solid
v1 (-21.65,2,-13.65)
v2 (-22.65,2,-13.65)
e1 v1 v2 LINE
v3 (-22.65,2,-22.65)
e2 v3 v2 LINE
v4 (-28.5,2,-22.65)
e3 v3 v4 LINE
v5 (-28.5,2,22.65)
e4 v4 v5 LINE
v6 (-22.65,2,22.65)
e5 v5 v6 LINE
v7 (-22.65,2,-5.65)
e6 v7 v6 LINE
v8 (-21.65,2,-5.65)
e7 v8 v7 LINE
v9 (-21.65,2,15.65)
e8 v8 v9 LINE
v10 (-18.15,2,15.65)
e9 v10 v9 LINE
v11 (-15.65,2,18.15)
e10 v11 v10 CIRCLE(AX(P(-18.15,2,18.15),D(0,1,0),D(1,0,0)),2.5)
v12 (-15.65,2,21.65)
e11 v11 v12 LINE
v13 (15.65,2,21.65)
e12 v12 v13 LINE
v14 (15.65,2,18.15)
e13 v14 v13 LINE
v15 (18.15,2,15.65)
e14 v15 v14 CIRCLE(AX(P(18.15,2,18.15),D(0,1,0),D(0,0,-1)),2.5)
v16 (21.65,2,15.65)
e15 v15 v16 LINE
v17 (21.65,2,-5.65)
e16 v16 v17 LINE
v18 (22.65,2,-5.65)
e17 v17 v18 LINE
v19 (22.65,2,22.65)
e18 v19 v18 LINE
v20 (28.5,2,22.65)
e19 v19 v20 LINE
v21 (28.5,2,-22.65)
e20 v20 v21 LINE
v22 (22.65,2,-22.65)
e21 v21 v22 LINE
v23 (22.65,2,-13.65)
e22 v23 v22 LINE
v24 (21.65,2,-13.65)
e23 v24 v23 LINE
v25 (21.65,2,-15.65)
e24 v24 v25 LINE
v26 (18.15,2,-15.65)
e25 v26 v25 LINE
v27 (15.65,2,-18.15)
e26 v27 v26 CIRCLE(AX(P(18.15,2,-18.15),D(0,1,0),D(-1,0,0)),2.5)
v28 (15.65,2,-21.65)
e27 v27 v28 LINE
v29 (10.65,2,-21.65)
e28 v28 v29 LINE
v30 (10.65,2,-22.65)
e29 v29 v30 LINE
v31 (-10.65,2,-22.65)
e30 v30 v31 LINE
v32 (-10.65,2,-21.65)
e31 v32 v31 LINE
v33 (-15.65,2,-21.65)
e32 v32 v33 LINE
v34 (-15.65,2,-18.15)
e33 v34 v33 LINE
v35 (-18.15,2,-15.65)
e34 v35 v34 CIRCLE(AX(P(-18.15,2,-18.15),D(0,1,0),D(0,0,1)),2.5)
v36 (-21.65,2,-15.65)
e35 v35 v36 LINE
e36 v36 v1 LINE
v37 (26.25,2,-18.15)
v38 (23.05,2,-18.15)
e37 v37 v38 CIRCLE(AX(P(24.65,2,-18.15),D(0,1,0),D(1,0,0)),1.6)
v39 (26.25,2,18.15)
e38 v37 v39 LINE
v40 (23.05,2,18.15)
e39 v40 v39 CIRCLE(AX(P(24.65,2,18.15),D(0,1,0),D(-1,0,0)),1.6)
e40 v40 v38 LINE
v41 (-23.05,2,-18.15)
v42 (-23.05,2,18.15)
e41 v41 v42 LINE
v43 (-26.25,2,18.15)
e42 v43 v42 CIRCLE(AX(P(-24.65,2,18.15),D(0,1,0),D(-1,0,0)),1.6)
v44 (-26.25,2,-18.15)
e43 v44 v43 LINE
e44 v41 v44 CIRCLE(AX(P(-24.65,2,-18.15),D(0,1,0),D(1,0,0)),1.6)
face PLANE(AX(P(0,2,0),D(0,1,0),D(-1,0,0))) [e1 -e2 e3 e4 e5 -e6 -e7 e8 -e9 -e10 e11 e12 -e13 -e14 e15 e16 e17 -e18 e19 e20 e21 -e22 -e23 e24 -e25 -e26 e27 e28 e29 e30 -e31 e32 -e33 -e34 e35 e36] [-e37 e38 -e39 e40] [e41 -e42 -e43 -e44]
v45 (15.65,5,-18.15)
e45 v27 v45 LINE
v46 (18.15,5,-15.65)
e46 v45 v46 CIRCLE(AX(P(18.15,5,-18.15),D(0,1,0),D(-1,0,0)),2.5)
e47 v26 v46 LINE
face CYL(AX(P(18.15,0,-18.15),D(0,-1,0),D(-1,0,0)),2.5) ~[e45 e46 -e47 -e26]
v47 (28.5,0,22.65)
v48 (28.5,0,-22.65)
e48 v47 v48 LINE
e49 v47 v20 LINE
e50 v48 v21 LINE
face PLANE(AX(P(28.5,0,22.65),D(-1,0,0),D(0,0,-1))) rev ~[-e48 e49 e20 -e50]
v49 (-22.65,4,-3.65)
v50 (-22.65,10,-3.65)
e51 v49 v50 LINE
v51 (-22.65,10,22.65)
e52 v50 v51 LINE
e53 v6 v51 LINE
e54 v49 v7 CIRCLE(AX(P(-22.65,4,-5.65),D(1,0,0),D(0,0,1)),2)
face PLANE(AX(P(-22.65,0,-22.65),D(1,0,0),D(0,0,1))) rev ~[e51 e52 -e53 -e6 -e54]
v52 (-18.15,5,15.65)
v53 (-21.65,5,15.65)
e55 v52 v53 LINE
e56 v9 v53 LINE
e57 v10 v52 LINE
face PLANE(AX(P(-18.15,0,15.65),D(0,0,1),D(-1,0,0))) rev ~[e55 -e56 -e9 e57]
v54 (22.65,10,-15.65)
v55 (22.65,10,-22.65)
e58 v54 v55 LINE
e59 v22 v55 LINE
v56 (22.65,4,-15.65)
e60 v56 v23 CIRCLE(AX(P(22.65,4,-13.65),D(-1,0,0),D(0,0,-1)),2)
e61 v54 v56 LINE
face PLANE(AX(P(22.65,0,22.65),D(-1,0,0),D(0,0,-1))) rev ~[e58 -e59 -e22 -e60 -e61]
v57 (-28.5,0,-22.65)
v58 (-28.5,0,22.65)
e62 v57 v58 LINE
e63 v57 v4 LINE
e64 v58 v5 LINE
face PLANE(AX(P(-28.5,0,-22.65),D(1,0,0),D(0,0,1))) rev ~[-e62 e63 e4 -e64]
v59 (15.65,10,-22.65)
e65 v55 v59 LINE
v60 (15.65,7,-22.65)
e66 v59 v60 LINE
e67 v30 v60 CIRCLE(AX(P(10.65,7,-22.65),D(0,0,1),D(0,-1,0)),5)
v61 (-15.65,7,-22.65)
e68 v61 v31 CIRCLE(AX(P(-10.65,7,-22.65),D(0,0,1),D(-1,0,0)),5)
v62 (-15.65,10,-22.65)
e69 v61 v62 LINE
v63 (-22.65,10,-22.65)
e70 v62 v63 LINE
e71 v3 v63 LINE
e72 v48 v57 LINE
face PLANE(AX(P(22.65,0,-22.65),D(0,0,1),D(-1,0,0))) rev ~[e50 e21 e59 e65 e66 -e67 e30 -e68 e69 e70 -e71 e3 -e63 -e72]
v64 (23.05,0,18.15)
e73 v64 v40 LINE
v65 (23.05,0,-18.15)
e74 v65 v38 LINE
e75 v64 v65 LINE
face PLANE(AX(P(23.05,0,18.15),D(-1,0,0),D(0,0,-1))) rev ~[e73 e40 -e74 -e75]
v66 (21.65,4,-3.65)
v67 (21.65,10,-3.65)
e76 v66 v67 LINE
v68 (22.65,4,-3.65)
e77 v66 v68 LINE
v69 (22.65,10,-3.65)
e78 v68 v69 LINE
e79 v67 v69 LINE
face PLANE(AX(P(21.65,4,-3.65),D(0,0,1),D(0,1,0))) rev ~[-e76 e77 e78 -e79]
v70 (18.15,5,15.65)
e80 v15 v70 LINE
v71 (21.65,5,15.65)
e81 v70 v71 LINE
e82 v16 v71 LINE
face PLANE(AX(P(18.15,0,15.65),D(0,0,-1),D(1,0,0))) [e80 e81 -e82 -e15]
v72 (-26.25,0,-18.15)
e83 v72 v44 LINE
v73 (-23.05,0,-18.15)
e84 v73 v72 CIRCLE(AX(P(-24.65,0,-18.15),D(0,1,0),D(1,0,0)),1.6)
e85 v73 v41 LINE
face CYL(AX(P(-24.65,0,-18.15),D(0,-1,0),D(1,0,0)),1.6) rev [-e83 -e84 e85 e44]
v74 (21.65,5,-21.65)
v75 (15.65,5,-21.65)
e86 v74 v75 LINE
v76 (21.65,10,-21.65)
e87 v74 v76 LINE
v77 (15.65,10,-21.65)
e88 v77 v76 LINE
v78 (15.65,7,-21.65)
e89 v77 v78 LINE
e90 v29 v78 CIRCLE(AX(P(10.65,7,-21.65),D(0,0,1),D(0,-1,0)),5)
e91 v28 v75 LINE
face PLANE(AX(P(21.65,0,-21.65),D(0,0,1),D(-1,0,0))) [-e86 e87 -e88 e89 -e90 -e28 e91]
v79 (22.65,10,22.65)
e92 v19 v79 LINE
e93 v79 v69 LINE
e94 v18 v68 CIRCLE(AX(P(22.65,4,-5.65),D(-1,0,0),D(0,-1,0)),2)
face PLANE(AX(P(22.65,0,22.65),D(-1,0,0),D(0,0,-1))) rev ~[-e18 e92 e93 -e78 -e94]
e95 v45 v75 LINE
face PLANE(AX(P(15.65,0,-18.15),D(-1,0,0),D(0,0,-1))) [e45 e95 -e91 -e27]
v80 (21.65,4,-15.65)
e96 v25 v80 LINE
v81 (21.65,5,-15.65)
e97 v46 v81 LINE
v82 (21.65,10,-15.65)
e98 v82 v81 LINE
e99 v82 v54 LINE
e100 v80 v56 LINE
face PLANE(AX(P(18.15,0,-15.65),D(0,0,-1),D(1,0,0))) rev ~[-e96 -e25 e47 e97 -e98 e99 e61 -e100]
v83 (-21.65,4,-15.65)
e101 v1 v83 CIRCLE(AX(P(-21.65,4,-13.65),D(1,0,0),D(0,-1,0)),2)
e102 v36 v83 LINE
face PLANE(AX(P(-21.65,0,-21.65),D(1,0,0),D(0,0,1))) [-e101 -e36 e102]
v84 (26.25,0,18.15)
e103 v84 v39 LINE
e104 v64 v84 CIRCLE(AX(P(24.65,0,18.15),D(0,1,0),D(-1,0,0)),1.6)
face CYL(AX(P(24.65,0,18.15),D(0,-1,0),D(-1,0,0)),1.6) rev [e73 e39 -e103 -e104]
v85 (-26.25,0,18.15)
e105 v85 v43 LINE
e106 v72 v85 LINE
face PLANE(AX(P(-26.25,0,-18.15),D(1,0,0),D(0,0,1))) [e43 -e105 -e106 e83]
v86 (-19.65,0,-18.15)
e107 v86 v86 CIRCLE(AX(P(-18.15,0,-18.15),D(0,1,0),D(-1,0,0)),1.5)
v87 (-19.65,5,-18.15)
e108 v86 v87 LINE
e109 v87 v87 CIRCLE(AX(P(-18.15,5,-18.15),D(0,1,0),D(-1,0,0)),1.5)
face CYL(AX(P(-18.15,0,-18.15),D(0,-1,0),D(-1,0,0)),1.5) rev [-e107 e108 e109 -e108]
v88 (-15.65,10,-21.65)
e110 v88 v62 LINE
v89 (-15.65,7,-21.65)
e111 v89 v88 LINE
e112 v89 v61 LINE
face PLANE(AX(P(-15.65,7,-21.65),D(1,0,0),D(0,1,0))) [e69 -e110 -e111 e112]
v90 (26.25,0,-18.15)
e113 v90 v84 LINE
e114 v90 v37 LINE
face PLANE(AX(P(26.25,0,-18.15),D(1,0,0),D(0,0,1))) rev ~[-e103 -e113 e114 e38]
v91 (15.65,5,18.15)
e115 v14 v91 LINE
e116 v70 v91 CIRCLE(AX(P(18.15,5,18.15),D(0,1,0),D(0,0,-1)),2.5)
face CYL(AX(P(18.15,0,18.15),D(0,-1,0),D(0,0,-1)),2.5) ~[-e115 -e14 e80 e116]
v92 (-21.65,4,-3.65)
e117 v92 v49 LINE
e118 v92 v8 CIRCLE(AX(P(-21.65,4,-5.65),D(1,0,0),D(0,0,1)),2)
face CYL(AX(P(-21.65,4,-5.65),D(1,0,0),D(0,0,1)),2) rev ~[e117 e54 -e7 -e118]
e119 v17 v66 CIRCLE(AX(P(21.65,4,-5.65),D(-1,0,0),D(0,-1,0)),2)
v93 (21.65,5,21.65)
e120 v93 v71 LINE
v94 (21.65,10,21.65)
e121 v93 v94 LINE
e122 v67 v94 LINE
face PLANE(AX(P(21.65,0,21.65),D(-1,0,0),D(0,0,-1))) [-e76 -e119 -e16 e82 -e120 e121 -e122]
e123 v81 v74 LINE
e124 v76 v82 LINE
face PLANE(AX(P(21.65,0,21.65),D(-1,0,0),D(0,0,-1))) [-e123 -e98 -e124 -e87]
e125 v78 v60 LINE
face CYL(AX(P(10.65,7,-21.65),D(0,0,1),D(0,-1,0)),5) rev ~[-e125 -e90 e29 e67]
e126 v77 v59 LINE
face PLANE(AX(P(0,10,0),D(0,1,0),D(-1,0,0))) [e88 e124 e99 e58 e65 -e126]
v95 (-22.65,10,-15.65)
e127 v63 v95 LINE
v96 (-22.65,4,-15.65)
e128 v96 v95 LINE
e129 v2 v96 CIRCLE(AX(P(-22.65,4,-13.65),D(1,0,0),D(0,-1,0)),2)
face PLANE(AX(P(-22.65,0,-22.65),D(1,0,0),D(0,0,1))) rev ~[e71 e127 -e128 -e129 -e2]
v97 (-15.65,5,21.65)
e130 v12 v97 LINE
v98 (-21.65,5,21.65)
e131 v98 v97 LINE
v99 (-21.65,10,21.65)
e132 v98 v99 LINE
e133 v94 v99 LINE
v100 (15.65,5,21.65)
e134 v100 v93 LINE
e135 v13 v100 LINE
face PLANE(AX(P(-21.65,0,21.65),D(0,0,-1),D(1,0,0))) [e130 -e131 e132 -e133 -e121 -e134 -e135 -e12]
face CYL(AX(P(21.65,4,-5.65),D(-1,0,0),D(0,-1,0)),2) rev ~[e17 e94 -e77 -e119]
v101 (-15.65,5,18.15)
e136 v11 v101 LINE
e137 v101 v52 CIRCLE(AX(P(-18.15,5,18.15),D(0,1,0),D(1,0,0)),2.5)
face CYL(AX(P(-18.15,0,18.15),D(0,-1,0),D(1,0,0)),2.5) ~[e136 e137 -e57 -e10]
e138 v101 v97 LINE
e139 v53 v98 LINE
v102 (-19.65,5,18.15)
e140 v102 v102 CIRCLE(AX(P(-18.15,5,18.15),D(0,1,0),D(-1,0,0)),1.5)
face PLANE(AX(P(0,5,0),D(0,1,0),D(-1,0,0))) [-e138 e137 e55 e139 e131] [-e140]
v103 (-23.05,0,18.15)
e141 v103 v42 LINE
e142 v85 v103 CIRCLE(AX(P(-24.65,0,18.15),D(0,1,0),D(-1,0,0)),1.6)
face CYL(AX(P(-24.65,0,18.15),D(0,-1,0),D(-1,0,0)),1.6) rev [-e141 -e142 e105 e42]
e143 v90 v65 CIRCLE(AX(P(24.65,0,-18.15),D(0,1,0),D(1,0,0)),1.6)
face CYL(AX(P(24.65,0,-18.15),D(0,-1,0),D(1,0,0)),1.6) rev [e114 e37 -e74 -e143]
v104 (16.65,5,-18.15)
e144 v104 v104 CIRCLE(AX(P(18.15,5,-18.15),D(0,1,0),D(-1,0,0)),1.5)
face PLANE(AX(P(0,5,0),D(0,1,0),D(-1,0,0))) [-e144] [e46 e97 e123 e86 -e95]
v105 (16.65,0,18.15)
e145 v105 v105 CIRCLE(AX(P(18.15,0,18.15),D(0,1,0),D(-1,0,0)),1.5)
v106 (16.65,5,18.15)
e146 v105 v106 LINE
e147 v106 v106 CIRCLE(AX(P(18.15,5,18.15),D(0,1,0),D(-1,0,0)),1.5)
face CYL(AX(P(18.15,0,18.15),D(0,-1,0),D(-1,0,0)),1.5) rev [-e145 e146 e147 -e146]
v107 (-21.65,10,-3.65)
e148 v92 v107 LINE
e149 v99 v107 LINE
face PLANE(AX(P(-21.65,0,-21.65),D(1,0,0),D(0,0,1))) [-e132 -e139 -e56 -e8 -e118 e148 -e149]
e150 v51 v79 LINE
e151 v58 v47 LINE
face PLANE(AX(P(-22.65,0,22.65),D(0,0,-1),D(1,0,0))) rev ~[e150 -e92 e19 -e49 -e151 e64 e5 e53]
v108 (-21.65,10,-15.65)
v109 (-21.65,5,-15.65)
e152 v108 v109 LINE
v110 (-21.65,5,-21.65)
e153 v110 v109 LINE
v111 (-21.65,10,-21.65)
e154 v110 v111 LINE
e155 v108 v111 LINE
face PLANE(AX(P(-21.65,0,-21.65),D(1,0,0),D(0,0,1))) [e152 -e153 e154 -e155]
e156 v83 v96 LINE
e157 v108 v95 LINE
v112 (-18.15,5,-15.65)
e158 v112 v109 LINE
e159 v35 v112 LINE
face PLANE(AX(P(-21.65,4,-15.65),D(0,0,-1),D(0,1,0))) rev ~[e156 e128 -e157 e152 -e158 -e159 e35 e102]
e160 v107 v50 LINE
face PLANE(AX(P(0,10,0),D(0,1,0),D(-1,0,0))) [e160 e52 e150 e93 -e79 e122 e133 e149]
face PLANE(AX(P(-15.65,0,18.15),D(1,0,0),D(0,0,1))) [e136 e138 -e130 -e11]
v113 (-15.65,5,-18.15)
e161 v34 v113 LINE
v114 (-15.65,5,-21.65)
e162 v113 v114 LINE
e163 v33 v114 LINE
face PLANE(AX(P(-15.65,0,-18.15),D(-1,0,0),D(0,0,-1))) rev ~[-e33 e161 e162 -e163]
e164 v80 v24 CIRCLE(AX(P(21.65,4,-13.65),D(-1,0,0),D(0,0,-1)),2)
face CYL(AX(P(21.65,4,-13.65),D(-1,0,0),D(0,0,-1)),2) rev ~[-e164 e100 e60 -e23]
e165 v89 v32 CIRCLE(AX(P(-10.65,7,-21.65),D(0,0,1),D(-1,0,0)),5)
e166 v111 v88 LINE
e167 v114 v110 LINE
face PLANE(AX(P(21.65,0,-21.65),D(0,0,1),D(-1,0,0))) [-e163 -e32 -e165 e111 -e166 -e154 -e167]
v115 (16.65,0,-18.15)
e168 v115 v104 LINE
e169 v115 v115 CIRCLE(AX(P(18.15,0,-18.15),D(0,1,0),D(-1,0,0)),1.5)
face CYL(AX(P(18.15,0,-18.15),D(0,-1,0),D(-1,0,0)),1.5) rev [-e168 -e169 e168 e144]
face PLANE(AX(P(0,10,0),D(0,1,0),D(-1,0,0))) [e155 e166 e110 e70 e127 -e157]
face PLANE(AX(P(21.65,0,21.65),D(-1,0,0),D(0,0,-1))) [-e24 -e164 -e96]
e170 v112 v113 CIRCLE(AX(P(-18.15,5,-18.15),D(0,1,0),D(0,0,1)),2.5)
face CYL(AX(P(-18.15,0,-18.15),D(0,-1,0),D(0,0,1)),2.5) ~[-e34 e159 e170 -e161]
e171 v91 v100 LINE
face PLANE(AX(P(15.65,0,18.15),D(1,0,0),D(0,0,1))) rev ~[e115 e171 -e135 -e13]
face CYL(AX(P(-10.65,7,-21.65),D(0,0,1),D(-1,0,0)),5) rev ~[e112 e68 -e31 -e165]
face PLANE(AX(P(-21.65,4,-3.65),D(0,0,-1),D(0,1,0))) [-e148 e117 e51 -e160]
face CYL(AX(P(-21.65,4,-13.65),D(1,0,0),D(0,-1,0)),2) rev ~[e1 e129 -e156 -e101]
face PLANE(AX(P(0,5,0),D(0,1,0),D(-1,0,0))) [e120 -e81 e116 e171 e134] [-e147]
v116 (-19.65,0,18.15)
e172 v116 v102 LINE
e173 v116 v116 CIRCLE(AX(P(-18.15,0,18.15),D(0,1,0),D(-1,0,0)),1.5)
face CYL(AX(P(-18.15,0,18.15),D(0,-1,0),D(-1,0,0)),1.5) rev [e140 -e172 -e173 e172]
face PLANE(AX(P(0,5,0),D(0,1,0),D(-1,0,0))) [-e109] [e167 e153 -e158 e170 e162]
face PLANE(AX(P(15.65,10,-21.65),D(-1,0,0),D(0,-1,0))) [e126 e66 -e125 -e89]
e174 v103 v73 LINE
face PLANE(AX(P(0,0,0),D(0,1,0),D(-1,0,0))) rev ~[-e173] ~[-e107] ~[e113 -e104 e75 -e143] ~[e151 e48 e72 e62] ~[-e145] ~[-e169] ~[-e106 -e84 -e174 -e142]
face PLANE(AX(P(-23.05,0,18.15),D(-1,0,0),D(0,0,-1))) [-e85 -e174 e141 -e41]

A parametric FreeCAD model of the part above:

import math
import FreeCAD as App
import Part
import Sketcher
from FreeCAD import Vector


def add_polygon(sketch, points):
    """Adds a closed chain of lines whose ends are joined by coincident constraints."""
    first, n = sketch.GeometryCount, len(points)
    for a, b in zip(points, points[1:] + points[:1]):
        sketch.addGeometry(Part.LineSegment(App.Vector(*a, 0), App.Vector(*b, 0)), False)
    for i in range(n):
        sketch.addConstraint(Sketcher.Constraint("Coincident", first + i, 2, first + (i + 1) % n, 1))

doc = App.newDocument("Part")
body = doc.addObject("PartDesign::Body", "Body")

sketch1 = doc.addObject("Sketcher::SketchObject", "Sketch")
body.addObject(sketch1)
sketch1.AttachmentSupport = (doc.XZ_Plane, [""])
sketch1.MapMode = "FlatFace"
add_polygon(sketch1, [(-23, -23), (-23, 23), (23, 23), (23, -23)])
add_polygon(sketch1, [(22, 22), (-22, 22), (-22, -22), (22, -22)])
sketch1.addConstraint(Sketcher.Constraint("Vertical", 0))
sketch1.addConstraint(Sketcher.Constraint("Horizontal", 1))
sketch1.addConstraint(Sketcher.Constraint("Vertical", 2))
sketch1.addConstraint(Sketcher.Constraint("Horizontal", 3))
sketch1.addConstraint(Sketcher.Constraint("Horizontal", 4))
sketch1.addConstraint(Sketcher.Constraint("Vertical", 5))
sketch1.addConstraint(Sketcher.Constraint("Horizontal", 6))
sketch1.addConstraint(Sketcher.Constraint("Vertical", 7))
sketch1.addConstraint(Sketcher.Constraint("Symmetric", 0, 2, 2, 2, -1, 1))
sketch1.addConstraint(Sketcher.Constraint("Symmetric", 4, 2, 6, 2, -1, 1))
sketch1.addConstraint(Sketcher.Constraint("Equal", 3, 0))
sketch1.addConstraint(Sketcher.Constraint("Equal", 6, 5))
sketch1.addConstraint(Sketcher.Constraint("DistanceX", 1, 1, 1, 2, 45.3))
sketch1.addConstraint(Sketcher.Constraint("DistanceX", 4, 2, 4, 1, 43.3))
pad1 = doc.addObject("PartDesign::Pad", "Pad")
body.addObject(pad1)
pad1.Profile = sketch1
pad1.Length = 10
pad1.Reversed = True

sketch2 = doc.addObject("Sketcher::SketchObject", "Sketch001")
body.addObject(sketch2)
sketch2.AttachmentSupport = (doc.XZ_Plane, [""])
sketch2.MapMode = "FlatFace"
sketch2.addGeometry(Part.LineSegment(Vector(-15.7, 18.1, 0), Vector(-15.7, 21.6, 0)), False)
sketch2.addGeometry(Part.LineSegment(Vector(-15.7, 21.6, 0), Vector(15.7, 21.6, 0)), False)
sketch2.addGeometry(Part.LineSegment(Vector(15.7, 21.6, 0), Vector(15.7, 18.1, 0)), False)
sketch2.addGeometry(Part.ArcOfCircle(Part.Circle(Vector(18.1, 18.1, 0), Vector(0, 0, 1), 2.5), math.radians(180), math.radians(270)), False)
sketch2.addGeometry(Part.LineSegment(Vector(18.1, 15.7, 0), Vector(21.6, 15.7, 0)), False)
sketch2.addGeometry(Part.LineSegment(Vector(21.6, 15.7, 0), Vector(21.6, -15.7, 0)), False)
sketch2.addGeometry(Part.LineSegment(Vector(21.6, -15.7, 0), Vector(18.1, -15.7, 0)), False)
sketch2.addGeometry(Part.ArcOfCircle(Part.Circle(Vector(18.1, -18.1, 0), Vector(0, 0, 1), 2.5), math.radians(90), math.radians(180)), False)
sketch2.addGeometry(Part.LineSegment(Vector(15.7, -18.1, 0), Vector(15.7, -21.6, 0)), False)
sketch2.addGeometry(Part.LineSegment(Vector(15.7, -21.6, 0), Vector(-15.7, -21.6, 0)), False)
sketch2.addGeometry(Part.LineSegment(Vector(-15.7, -21.6, 0), Vector(-15.7, -18.1, 0)), False)
sketch2.addGeometry(Part.ArcOfCircle(Part.Circle(Vector(-18.1, -18.1, 0), Vector(0, 0, 1), 2.5), math.radians(0), math.radians(90)), False)
sketch2.addGeometry(Part.LineSegment(Vector(-18.1, -15.7, 0), Vector(-21.6, -15.7, 0)), False)
sketch2.addGeometry(Part.LineSegment(Vector(-21.6, -15.7, 0), Vector(-21.6, 15.7, 0)), False)
sketch2.addGeometry(Part.LineSegment(Vector(-21.6, 15.7, 0), Vector(-18.1, 15.7, 0)), False)
sketch2.addGeometry(Part.ArcOfCircle(Part.Circle(Vector(-18.1, 18.1, 0), Vector(0, 0, 1), 2.5), math.radians(-90), math.radians(0)), False)
sketch2.addConstraint(Sketcher.Constraint("Coincident", 0, 2, 1, 1))
sketch2.addConstraint(Sketcher.Constraint("Coincident", 1, 2, 2, 1))
sketch2.addConstraint(Sketcher.Constraint("Tangent", 2, 2, 3, 1))
sketch2.addConstraint(Sketcher.Constraint("Tangent", 3, 2, 4, 1))
sketch2.addConstraint(Sketcher.Constraint("Coincident", 4, 2, 5, 1))
sketch2.addConstraint(Sketcher.Constraint("Coincident", 5, 2, 6, 1))
sketch2.addConstraint(Sketcher.Constraint("Tangent", 6, 2, 7, 1))
sketch2.addConstraint(Sketcher.Constraint("Tangent", 7, 2, 8, 1))
sketch2.addConstraint(Sketcher.Constraint("Coincident", 8, 2, 9, 1))
sketch2.addConstraint(Sketcher.Constraint("Coincident", 9, 2, 10, 1))
sketch2.addConstraint(Sketcher.Constraint("Tangent", 10, 2, 11, 1))
sketch2.addConstraint(Sketcher.Constraint("Tangent", 11, 2, 12, 1))
sketch2.addConstraint(Sketcher.Constraint("Coincident", 12, 2, 13, 1))
sketch2.addConstraint(Sketcher.Constraint("Coincident", 13, 2, 14, 1))
sketch2.addConstraint(Sketcher.Constraint("Tangent", 14, 2, 15, 1))
sketch2.addConstraint(Sketcher.Constraint("Tangent", 15, 2, 0, 1))
sketch2.addConstraint(Sketcher.Constraint("Vertical", 0))
sketch2.addConstraint(Sketcher.Constraint("Horizontal", 1))
sketch2.addConstraint(Sketcher.Constraint("Vertical", 2))
sketch2.addConstraint(Sketcher.Constraint("Horizontal", 4))
sketch2.addConstraint(Sketcher.Constraint("Vertical", 5))
sketch2.addConstraint(Sketcher.Constraint("Horizontal", 6))
sketch2.addConstraint(Sketcher.Constraint("Vertical", 8))
sketch2.addConstraint(Sketcher.Constraint("Horizontal", 9))
sketch2.addConstraint(Sketcher.Constraint("Vertical", 10))
sketch2.addConstraint(Sketcher.Constraint("Horizontal", 12))
sketch2.addConstraint(Sketcher.Constraint("Vertical", 13))
sketch2.addConstraint(Sketcher.Constraint("Horizontal", 14))
sketch2.addConstraint(Sketcher.Constraint("Equal", 3, 7))
sketch2.addConstraint(Sketcher.Constraint("Equal", 7, 11))
sketch2.addConstraint(Sketcher.Constraint("Equal", 11, 15))
sketch2.addConstraint(Sketcher.Constraint("Symmetric", 3, 3, 11, 3, -1, 1))
sketch2.addConstraint(Sketcher.Constraint("Symmetric", 7, 3, 15, 3, -1, 1))
sketch2.addConstraint(Sketcher.Constraint("Symmetric", 7, 3, 11, 3, -2))
sketch2.addConstraint(Sketcher.Constraint("Equal", 6, 12))
sketch2.addConstraint(Sketcher.Constraint("Equal", 14, 0))
sketch2.addConstraint(Sketcher.Constraint("Equal", 9, 5))
sketch2.addConstraint(Sketcher.Constraint("Equal", 2, 8))
sketch2.addConstraint(Sketcher.Constraint("Radius", 3, 2.5))
sketch2.addConstraint(Sketcher.Constraint("DistanceX", 4, 1, 4, 2, 3.5))
sketch2.addConstraint(Sketcher.Constraint("DistanceX", 1, 1, 1, 2, 31.3))
pad2 = doc.addObject("PartDesign::Pad", "Pad001")
body.addObject(pad2)
pad2.Profile = sketch2
pad2.Length = 2
pad2.Reversed = True

sketch3 = doc.addObject("Sketcher::SketchObject", "Sketch002")
body.addObject(sketch3)
sketch3.AttachmentSupport = (doc.XZ_Plane, [""])
sketch3.MapMode = "FlatFace"
sketch3.addGeometry(Part.LineSegment(Vector(-21.6, 15.7, 0), Vector(-21.6, 21.6, 0)), False)
sketch3.addGeometry(Part.LineSegment(Vector(-21.6, 21.6, 0), Vector(-15.7, 21.6, 0)), False)
sketch3.addGeometry(Part.LineSegment(Vector(-15.7, 21.6, 0), Vector(-15.7, 18.1, 0)), False)
sketch3.addGeometry(Part.ArcOfCircle(Part.Circle(Vector(-18.1, 18.1, 0), Vector(0, 0, 1), 2.5), math.radians(-90), math.radians(0)), False)
sketch3.addGeometry(Part.LineSegment(Vector(-18.1, 15.7, 0), Vector(-21.6, 15.7, 0)), False)
sketch3.addGeometry(Part.Circle(Vector(-18.1, 18.1, 0), Vector(0, 0, 1), 1.5), False)
sketch3.addGeometry(Part.LineSegment(Vector(15.7, 18.1, 0), Vector(15.7, 21.6, 0)), False)
sketch3.addGeometry(Part.LineSegment(Vector(15.7, 21.6, 0), Vector(21.6, 21.6, 0)), False)
sketch3.addGeometry(Part.LineSegment(Vector(21.6, 21.6, 0), Vector(21.6, 15.7, 0)), False)
sketch3.addGeometry(Part.LineSegment(Vector(21.6, 15.7, 0), Vector(18.1, 15.7, 0)), False)
sketch3.addGeometry(Part.ArcOfCircle(Part.Circle(Vector(18.1, 18.1, 0), Vector(0, 0, 1), 2.5), math.radians(180), math.radians(270)), False)
sketch3.addGeometry(Part.Circle(Vector(18.1, 18.1, 0), Vector(0, 0, 1), 1.5), False)
sketch3.addGeometry(Part.LineSegment(Vector(-21.6, -21.6, 0), Vector(-21.6, -15.7, 0)), False)
sketch3.addGeometry(Part.LineSegment(Vector(-21.6, -15.7, 0), Vector(-18.1, -15.7, 0)), False)
sketch3.addGeometry(Part.ArcOfCircle(Part.Circle(Vector(-18.1, -18.1, 0), Vector(0, 0, 1), 2.5), math.radians(0), math.radians(90)), False)
sketch3.addGeometry(Part.LineSegment(Vector(-15.7, -18.1, 0), Vector(-15.7, -21.6, 0)), False)
sketch3.addGeometry(Part.LineSegment(Vector(-15.7, -21.6, 0), Vector(-21.6, -21.6, 0)), False)
sketch3.addGeometry(Part.Circle(Vector(-18.1, -18.1, 0), Vector(0, 0, 1), 1.5), False)
sketch3.addGeometry(Part.LineSegment(Vector(18.1, -15.7, 0), Vector(21.6, -15.7, 0)), False)
sketch3.addGeometry(Part.LineSegment(Vector(21.6, -15.7, 0), Vector(21.6, -21.6, 0)), False)
sketch3.addGeometry(Part.LineSegment(Vector(21.6, -21.6, 0), Vector(15.7, -21.6, 0)), False)
sketch3.addGeometry(Part.LineSegment(Vector(15.7, -21.6, 0), Vector(15.7, -18.1, 0)), False)
sketch3.addGeometry(Part.ArcOfCircle(Part.Circle(Vector(18.1, -18.1, 0), Vector(0, 0, 1), 2.5), math.radians(90), math.radians(180)), False)
sketch3.addGeometry(Part.Circle(Vector(18.1, -18.1, 0), Vector(0, 0, 1), 1.5), False)
sketch3.addConstraint(Sketcher.Constraint("Coincident", 0, 2, 1, 1))
sketch3.addConstraint(Sketcher.Constraint("Coincident", 1, 2, 2, 1))
sketch3.addConstraint(Sketcher.Constraint("Tangent", 2, 2, 3, 2))
sketch3.addConstraint(Sketcher.Constraint("Tangent", 3, 1, 4, 1))
sketch3.addConstraint(Sketcher.Constraint("Coincident", 4, 2, 0, 1))
sketch3.addConstraint(Sketcher.Constraint("Coincident", 6, 2, 7, 1))
sketch3.addConstraint(Sketcher.Constraint("Coincident", 7, 2, 8, 1))
sketch3.addConstraint(Sketcher.Constraint("Coincident", 8, 2, 9, 1))
sketch3.addConstraint(Sketcher.Constraint("Tangent", 9, 2, 10, 2))
sketch3.addConstraint(Sketcher.Constraint("Tangent", 10, 1, 6, 1))
sketch3.addConstraint(Sketcher.Constraint("Coincident", 12, 2, 13, 1))
sketch3.addConstraint(Sketcher.Constraint("Tangent", 13, 2, 14, 2))
sketch3.addConstraint(Sketcher.Constraint("Tangent", 14, 1, 15, 1))
sketch3.addConstraint(Sketcher.Constraint("Coincident", 15, 2, 16, 1))
sketch3.addConstraint(Sketcher.Constraint("Coincident", 16, 2, 12, 1))
sketch3.addConstraint(Sketcher.Constraint("Coincident", 18, 2, 19, 1))
sketch3.addConstraint(Sketcher.Constraint("Coincident", 19, 2, 20, 1))
sketch3.addConstraint(Sketcher.Constraint("Coincident", 20, 2, 21, 1))
sketch3.addConstraint(Sketcher.Constraint("Tangent", 21, 2, 22, 2))
sketch3.addConstraint(Sketcher.Constraint("Tangent", 22, 1, 18, 1))
sketch3.addConstraint(Sketcher.Constraint("Vertical", 0))
sketch3.addConstraint(Sketcher.Constraint("Horizontal", 1))
sketch3.addConstraint(Sketcher.Constraint("Vertical", 2))
sketch3.addConstraint(Sketcher.Constraint("Horizontal", 4))
sketch3.addConstraint(Sketcher.Constraint("Vertical", 6))
sketch3.addConstraint(Sketcher.Constraint("Horizontal", 7))
sketch3.addConstraint(Sketcher.Constraint("Vertical", 8))
sketch3.addConstraint(Sketcher.Constraint("Horizontal", 9))
sketch3.addConstraint(Sketcher.Constraint("Vertical", 12))
sketch3.addConstraint(Sketcher.Constraint("Horizontal", 13))
sketch3.addConstraint(Sketcher.Constraint("Vertical", 15))
sketch3.addConstraint(Sketcher.Constraint("Horizontal", 16))
sketch3.addConstraint(Sketcher.Constraint("Horizontal", 18))
sketch3.addConstraint(Sketcher.Constraint("Vertical", 19))
sketch3.addConstraint(Sketcher.Constraint("Horizontal", 20))
sketch3.addConstraint(Sketcher.Constraint("Vertical", 21))
sketch3.addConstraint(Sketcher.Constraint("Coincident", 5, 3, 3, 3))
sketch3.addConstraint(Sketcher.Constraint("Coincident", 11, 3, 10, 3))
sketch3.addConstraint(Sketcher.Constraint("Coincident", 17, 3, 14, 3))
sketch3.addConstraint(Sketcher.Constraint("Coincident", 23, 3, 22, 3))
sketch3.addConstraint(Sketcher.Constraint("Equal", 3, 10))
sketch3.addConstraint(Sketcher.Constraint("Equal", 5, 11))
sketch3.addConstraint(Sketcher.Constraint("Equal", 10, 14))
sketch3.addConstraint(Sketcher.Constraint("Equal", 11, 17))
sketch3.addConstraint(Sketcher.Constraint("Equal", 14, 22))
sketch3.addConstraint(Sketcher.Constraint("Equal", 17, 23))
sketch3.addConstraint(Sketcher.Constraint("Symmetric", 10, 3, 14, 3, -1, 1))
sketch3.addConstraint(Sketcher.Constraint("Symmetric", 3, 3, 22, 3, -1, 1))
sketch3.addConstraint(Sketcher.Constraint("Symmetric", 7, 2, 16, 2, -1, 1))
sketch3.addConstraint(Sketcher.Constraint("Symmetric", 0, 2, 19, 2, -1, 1))
sketch3.addConstraint(Sketcher.Constraint("Symmetric", 3, 3, 10, 3, -2))
sketch3.addConstraint(Sketcher.Constraint("Symmetric", 0, 2, 7, 2, -2))
sketch3.addConstraint(Sketcher.Constraint("Equal", 20, 0))
sketch3.addConstraint(Sketcher.Constraint("Diameter", 5, 3.0))
sketch3.addConstraint(Sketcher.Constraint("Radius", 3, 2.5))
sketch3.addConstraint(Sketcher.Constraint("DistanceX", 4, 2, 4, 1, 3.5))
sketch3.addConstraint(Sketcher.Constraint("DistanceX", 3, 3, 10, 3, 36.3))
sketch3.addConstraint(Sketcher.Constraint("DistanceY", 14, 3, 3, 3, 36.3))
pad3 = doc.addObject("PartDesign::Pad", "Pad002")
body.addObject(pad3)
pad3.Profile = sketch3
pad3.Length = 5
pad3.Reversed = True

sketch4 = doc.addObject("Sketcher::SketchObject", "Sketch003")
body.addObject(sketch4)
sketch4.AttachmentSupport = (doc.XZ_Plane, [""])
sketch4.MapMode = "FlatFace"
add_polygon(sketch4, [(-28.5, 22.6), (-22.6, 22.6), (-22.6, -22.6), (-28.5, -22.6)])
sketch4.addGeometry(Part.LineSegment(Vector(-23.1, -18.1, 0), Vector(-23.1, 18.1, 0)), False)
sketch4.addGeometry(Part.ArcOfCircle(Part.Circle(Vector(-24.6, 18.1, 0), Vector(0, 0, 1), 1.6), math.radians(0), math.radians(180)), False)
sketch4.addGeometry(Part.LineSegment(Vector(-26.2, 18.1, 0), Vector(-26.2, -18.1, 0)), False)
sketch4.addGeometry(Part.ArcOfCircle(Part.Circle(Vector(-24.6, -18.1, 0), Vector(0, 0, 1), 1.6), math.radians(180), math.radians(360)), False)
add_polygon(sketch4, [(22.6, -22.6), (22.6, 22.6), (28.5, 22.6), (28.5, -22.6)])
sketch4.addGeometry(Part.ArcOfCircle(Part.Circle(Vector(24.6, 18.1, 0), Vector(0, 0, 1), 1.6), math.radians(0), math.radians(180)), False)
sketch4.addGeometry(Part.LineSegment(Vector(23.1, 18.1, 0), Vector(23.1, -18.1, 0)), False)
sketch4.addGeometry(Part.ArcOfCircle(Part.Circle(Vector(24.6, -18.1, 0), Vector(0, 0, 1), 1.6), math.radians(180), math.radians(360)), False)
sketch4.addGeometry(Part.LineSegment(Vector(26.2, -18.1, 0), Vector(26.2, 18.1, 0)), False)
sketch4.addConstraint(Sketcher.Constraint("Tangent", 4, 2, 5, 1))
sketch4.addConstraint(Sketcher.Constraint("Tangent", 5, 2, 6, 1))
sketch4.addConstraint(Sketcher.Constraint("Tangent", 6, 2, 7, 1))
sketch4.addConstraint(Sketcher.Constraint("Tangent", 7, 2, 4, 1))
sketch4.addConstraint(Sketcher.Constraint("Tangent", 12, 2, 13, 1))
sketch4.addConstraint(Sketcher.Constraint("Tangent", 13, 2, 14, 1))
sketch4.addConstraint(Sketcher.Constraint("Tangent", 14, 2, 15, 1))
sketch4.addConstraint(Sketcher.Constraint("Tangent", 15, 2, 12, 1))
sketch4.addConstraint(Sketcher.Constraint("Horizontal", 0))
sketch4.addConstraint(Sketcher.Constraint("Vertical", 1))
sketch4.addConstraint(Sketcher.Constraint("Horizontal", 2))
sketch4.addConstraint(Sketcher.Constraint("Vertical", 3))
sketch4.addConstraint(Sketcher.Constraint("Vertical", 4))
sketch4.addConstraint(Sketcher.Constraint("Vertical", 6))
sketch4.addConstraint(Sketcher.Constraint("Vertical", 8))
sketch4.addConstraint(Sketcher.Constraint("Horizontal", 9))
sketch4.addConstraint(Sketcher.Constraint("Vertical", 10))
sketch4.addConstraint(Sketcher.Constraint("Horizontal", 11))
sketch4.addConstraint(Sketcher.Constraint("Vertical", 13))
sketch4.addConstraint(Sketcher.Constraint("Vertical", 15))
sketch4.addConstraint(Sketcher.Constraint("Equal", 7, 12))
sketch4.addConstraint(Sketcher.Constraint("Symmetric", 7, 3, 12, 3, -1, 1))
sketch4.addConstraint(Sketcher.Constraint("Symmetric", 1, 2, 8, 2, -1, 1))
sketch4.addConstraint(Sketcher.Constraint("Symmetric", 3, 2, 10, 2, -1, 1))
sketch4.addConstraint(Sketcher.Constraint("Horizontal", 5, 3, 12, 3))
sketch4.addConstraint(Sketcher.Constraint("Horizontal", 7, 3, 14, 3))
sketch4.addConstraint(Sketcher.Constraint("Horizontal", 3, 2, 8, 2))
sketch4.addConstraint(Sketcher.Constraint("Radius", 5, 1.6))
sketch4.addConstraint(Sketcher.Constraint("DistanceY", 1, 2, 1, 1, 45.3))
sketch4.addConstraint(Sketcher.Constraint("DistanceX", 5, 3, 0, 2, 2.0))
sketch4.addConstraint(Sketcher.Constraint("DistanceX", 0, 2, 8, 2, 45.3))
sketch4.addConstraint(Sketcher.Constraint("DistanceY", 4, 1, 4, 2, 36.3))
sketch4.addConstraint(Sketcher.Constraint("DistanceX", 0, 1, 0, 2, 5.85))
pad4 = doc.addObject("PartDesign::Pad", "Pad003")
body.addObject(pad4)
pad4.Profile = sketch4
pad4.Length = 2
pad4.Reversed = True

sketch5 = doc.addObject("Sketcher::SketchObject", "Sketch004")
body.addObject(sketch5)
sketch5.AttachmentSupport = (doc.XY_Plane, [""])
sketch5.MapMode = "FlatFace"
sketch5.AttachmentOffset = App.Placement(Vector(0, 0, -21.65), App.Rotation())
sketch5.addGeometry(Part.LineSegment(Vector(15.7, 10, 0), Vector(-15.7, 10, 0)), False)
sketch5.addGeometry(Part.LineSegment(Vector(-15.7, 10, 0), Vector(-15.7, 7, 0)), False)
sketch5.addGeometry(Part.ArcOfCircle(Part.Circle(Vector(-10.7, 7, 0), Vector(0, 0, 1), 5), math.radians(180), math.radians(270)), False)
sketch5.addGeometry(Part.LineSegment(Vector(-10.7, 2, 0), Vector(10.7, 2, 0)), False)
sketch5.addGeometry(Part.ArcOfCircle(Part.Circle(Vector(10.7, 7, 0), Vector(0, 0, 1), 5), math.radians(-90), math.radians(0)), False)
sketch5.addGeometry(Part.LineSegment(Vector(15.7, 7, 0), Vector(15.7, 10, 0)), False)
sketch5.addConstraint(Sketcher.Constraint("Coincident", 0, 2, 1, 1))
sketch5.addConstraint(Sketcher.Constraint("Tangent", 1, 2, 2, 1))
sketch5.addConstraint(Sketcher.Constraint("Tangent", 2, 2, 3, 1))
sketch5.addConstraint(Sketcher.Constraint("Tangent", 3, 2, 4, 1))
sketch5.addConstraint(Sketcher.Constraint("Tangent", 4, 2, 5, 1))
sketch5.addConstraint(Sketcher.Constraint("Coincident", 5, 2, 0, 1))
sketch5.addConstraint(Sketcher.Constraint("Horizontal", 0))
sketch5.addConstraint(Sketcher.Constraint("Vertical", 1))
sketch5.addConstraint(Sketcher.Constraint("Horizontal", 3))
sketch5.addConstraint(Sketcher.Constraint("Vertical", 5))
sketch5.addConstraint(Sketcher.Constraint("Equal", 2, 4))
sketch5.addConstraint(Sketcher.Constraint("Radius", 2, 5.0))
sketch5.addConstraint(Sketcher.Constraint("DistanceY", 1, 2, 1, 1, 3.0))
sketch5.addConstraint(Sketcher.Constraint("DistanceX", 0, 2, 0, 1, 31.3))
sketch5.addConstraint(Sketcher.Constraint("DistanceY", -1, 1, 2, 3, 7.0))
sketch5.addConstraint(Sketcher.Constraint("DistanceX", 2, 3, -1, 1, 10.65))
pocket1 = doc.addObject("PartDesign::Pocket", "Pocket")
body.addObject(pocket1)
pocket1.Profile = sketch5
pocket1.Length = 2

sketch6 = doc.addObject("Sketcher::SketchObject", "Sketch005")
body.addObject(sketch6)
sketch6.AttachmentSupport = (doc.YZ_Plane, [""])
sketch6.MapMode = "FlatFace"
sketch6.AttachmentOffset = App.Placement(Vector(0, 0, 21.65), App.Rotation())
sketch6.addGeometry(Part.ArcOfCircle(Part.Circle(Vector(4, -13.7, 0), Vector(0, 0, 1), 2), math.radians(180), math.radians(270)), False)
sketch6.addGeometry(Part.LineSegment(Vector(2, -13.7, 0), Vector(2, -5.7, 0)), False)
sketch6.addGeometry(Part.ArcOfCircle(Part.Circle(Vector(4, -5.7, 0), Vector(0, 0, 1), 2), math.radians(90), math.radians(180)), False)
sketch6.addGeometry(Part.LineSegment(Vector(4, -3.6, 0), Vector(10, -3.6, 0)), False)
sketch6.addGeometry(Part.LineSegment(Vector(10, -3.6, 0), Vector(10, -15.7, 0)), False)
sketch6.addGeometry(Part.LineSegment(Vector(10, -15.7, 0), Vector(4, -15.7, 0)), False)
sketch6.addConstraint(Sketcher.Constraint("Tangent", 0, 1, 1, 1))
sketch6.addConstraint(Sketcher.Constraint("Tangent", 1, 2, 2, 2))
sketch6.addConstraint(Sketcher.Constraint("Tangent", 2, 1, 3, 1))
sketch6.addConstraint(Sketcher.Constraint("Coincident", 3, 2, 4, 1))
sketch6.addConstraint(Sketcher.Constraint("Coincident", 4, 2, 5, 1))
sketch6.addConstraint(Sketcher.Constraint("Tangent", 5, 2, 0, 2))
sketch6.addConstraint(Sketcher.Constraint("Vertical", 1))
sketch6.addConstraint(Sketcher.Constraint("Horizontal", 3))
sketch6.addConstraint(Sketcher.Constraint("Vertical", 4))
sketch6.addConstraint(Sketcher.Constraint("Horizontal", 5))
sketch6.addConstraint(Sketcher.Constraint("Equal", 0, 2))
sketch6.addConstraint(Sketcher.Constraint("Radius", 0, 2.0))
sketch6.addConstraint(Sketcher.Constraint("DistanceX", -1, 1, 0, 1, 2.0))
sketch6.addConstraint(Sketcher.Constraint("DistanceX", 3, 1, 3, 2, 6.0))
sketch6.addConstraint(Sketcher.Constraint("DistanceY", 1, 1, 1, 2, 8.0))
sketch6.addConstraint(Sketcher.Constraint("DistanceY", 0, 3, -1, 1, 13.65))
pocket2 = doc.addObject("PartDesign::Pocket", "Pocket001")
body.addObject(pocket2)
pocket2.Profile = sketch6
pocket2.Length = 2
pocket2.Reversed = True

sketch7 = doc.addObject("Sketcher::SketchObject", "Sketch006")
body.addObject(sketch7)
sketch7.AttachmentSupport = (doc.YZ_Plane, [""])
sketch7.MapMode = "FlatFace"
sketch7.AttachmentOffset = App.Placement(Vector(0, 0, -21.65), App.Rotation())
sketch7.addGeometry(Part.ArcOfCircle(Part.Circle(Vector(4, -13.7, 0), Vector(0, 0, 1), 2), math.radians(180), math.radians(270)), False)
sketch7.addGeometry(Part.LineSegment(Vector(4, -15.7, 0), Vector(10, -15.7, 0)), False)
sketch7.addGeometry(Part.LineSegment(Vector(10, -15.7, 0), Vector(10, -3.6, 0)), False)
sketch7.addGeometry(Part.LineSegment(Vector(10, -3.6, 0), Vector(4, -3.6, 0)), False)
sketch7.addGeometry(Part.ArcOfCircle(Part.Circle(Vector(4, -5.7, 0), Vector(0, 0, 1), 2), math.radians(90), math.radians(180)), False)
sketch7.addGeometry(Part.LineSegment(Vector(2, -5.7, 0), Vector(2, -13.7, 0)), False)
sketch7.addConstraint(Sketcher.Constraint("Tangent", 0, 2, 1, 1))
sketch7.addConstraint(Sketcher.Constraint("Coincident", 1, 2, 2, 1))
sketch7.addConstraint(Sketcher.Constraint("Coincident", 2, 2, 3, 1))
sketch7.addConstraint(Sketcher.Constraint("Tangent", 3, 2, 4, 1))
sketch7.addConstraint(Sketcher.Constraint("Tangent", 4, 2, 5, 1))
sketch7.addConstraint(Sketcher.Constraint("Tangent", 5, 2, 0, 1))
sketch7.addConstraint(Sketcher.Constraint("Horizontal", 1))
sketch7.addConstraint(Sketcher.Constraint("Vertical", 2))
sketch7.addConstraint(Sketcher.Constraint("Horizontal", 3))
sketch7.addConstraint(Sketcher.Constraint("Vertical", 5))
sketch7.addConstraint(Sketcher.Constraint("Equal", 0, 4))
sketch7.addConstraint(Sketcher.Constraint("Radius", 0, 2.0))
sketch7.addConstraint(Sketcher.Constraint("DistanceY", 2, 1, 2, 2, 12.0))
sketch7.addConstraint(Sketcher.Constraint("DistanceX", -1, 1, 4, 2, 2.0))
sketch7.addConstraint(Sketcher.Constraint("DistanceX", 1, 1, 1, 2, 6.0))
sketch7.addConstraint(Sketcher.Constraint("DistanceY", 0, 3, -1, 1, 13.65))
pocket3 = doc.addObject("PartDesign::Pocket", "Pocket002")
body.addObject(pocket3)
pocket3.Profile = sketch7
pocket3.Length = 2

doc.recompute()
